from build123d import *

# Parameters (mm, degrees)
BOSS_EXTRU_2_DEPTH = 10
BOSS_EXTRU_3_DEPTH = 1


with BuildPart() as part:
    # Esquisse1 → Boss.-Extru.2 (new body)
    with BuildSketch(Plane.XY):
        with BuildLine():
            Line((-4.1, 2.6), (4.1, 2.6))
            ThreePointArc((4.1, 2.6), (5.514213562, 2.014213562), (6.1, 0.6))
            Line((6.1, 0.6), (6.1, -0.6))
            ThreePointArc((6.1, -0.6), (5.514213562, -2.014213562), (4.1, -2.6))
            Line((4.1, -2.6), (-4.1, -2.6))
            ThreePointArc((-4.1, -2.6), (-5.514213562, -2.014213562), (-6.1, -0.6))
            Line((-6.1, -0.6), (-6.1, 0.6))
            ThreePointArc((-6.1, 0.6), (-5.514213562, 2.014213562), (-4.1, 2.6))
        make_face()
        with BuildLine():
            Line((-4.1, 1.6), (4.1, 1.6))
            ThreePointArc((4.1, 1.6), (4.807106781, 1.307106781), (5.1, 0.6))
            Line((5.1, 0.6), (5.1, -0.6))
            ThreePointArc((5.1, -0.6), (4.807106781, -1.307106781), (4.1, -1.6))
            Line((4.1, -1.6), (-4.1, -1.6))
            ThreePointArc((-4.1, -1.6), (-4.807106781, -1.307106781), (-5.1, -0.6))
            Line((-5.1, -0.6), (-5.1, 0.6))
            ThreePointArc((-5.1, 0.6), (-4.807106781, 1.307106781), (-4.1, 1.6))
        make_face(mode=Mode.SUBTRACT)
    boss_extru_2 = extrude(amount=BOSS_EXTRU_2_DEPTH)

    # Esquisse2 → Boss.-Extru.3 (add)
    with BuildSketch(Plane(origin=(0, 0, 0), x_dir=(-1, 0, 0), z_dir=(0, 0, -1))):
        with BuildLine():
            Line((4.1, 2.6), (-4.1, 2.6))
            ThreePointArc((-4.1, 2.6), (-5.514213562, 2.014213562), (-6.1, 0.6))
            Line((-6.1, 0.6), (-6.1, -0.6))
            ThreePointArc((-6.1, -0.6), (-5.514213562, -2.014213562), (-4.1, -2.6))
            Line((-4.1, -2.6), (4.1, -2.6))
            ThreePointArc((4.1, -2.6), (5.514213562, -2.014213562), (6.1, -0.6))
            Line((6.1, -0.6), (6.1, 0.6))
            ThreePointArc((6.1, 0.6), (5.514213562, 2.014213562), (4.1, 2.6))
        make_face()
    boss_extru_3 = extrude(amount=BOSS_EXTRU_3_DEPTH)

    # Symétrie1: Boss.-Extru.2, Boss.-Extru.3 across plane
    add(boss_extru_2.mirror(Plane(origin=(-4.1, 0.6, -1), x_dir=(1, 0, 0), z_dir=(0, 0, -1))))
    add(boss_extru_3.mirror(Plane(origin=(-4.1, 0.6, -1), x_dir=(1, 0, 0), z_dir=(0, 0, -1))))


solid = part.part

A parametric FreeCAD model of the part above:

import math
import FreeCAD as App
import Part
import Sketcher

doc = App.newDocument("Part")
params = doc.addObject("Spreadsheet::Sheet", "Params")
for row, (alias, value) in enumerate([
    ("sketch1_radius", "2 mm"),
    ("sketch1_radius2", "1 mm"),
    ("sketch1_width", "8.2 mm"),
    ("sketch1_height", "1.2 mm"),
    ("pad1_length", "10 mm"),
    ("sketch2_radius", "2 mm"),
    ("sketch2_width", "8.2 mm"),
    ("sketch2_height", "1.2 mm"),
    ("pad2_length", "1 mm"),
], start=1):
    params.set(f"A{row}", alias)
    params.set(f"B{row}", "=" + value)
    params.setAlias(f"B{row}", alias)

body = doc.addObject("PartDesign::Body", "Body")

# Sketch on XY plane
sketch1 = doc.addObject("Sketcher::SketchObject", "Sketch")
body.addObject(sketch1)
sketch1.AttachmentSupport = (doc.XY_Plane, [""])
sketch1.MapMode = "FlatFace"
sketch1.addGeometry([
    Part.LineSegment(App.Vector(4.1, 2.6, 0), App.Vector(-4.1, 2.6, 0)),  # 0
    Part.ArcOfCircle(Part.Circle(App.Vector(-4.1, 0.6, 0), App.Vector(0, 0, 1), 2), math.radians(90), math.radians(180)),  # 1
    Part.LineSegment(App.Vector(-6.1, 0.6, 0), App.Vector(-6.1, -0.6, 0)),  # 2
    Part.ArcOfCircle(Part.Circle(App.Vector(-4.1, -0.6, 0), App.Vector(0, 0, 1), 2), math.radians(-180), math.radians(-90)),  # 3
    Part.LineSegment(App.Vector(-4.1, -2.6, 0), App.Vector(4.1, -2.6, 0)),  # 4
    Part.ArcOfCircle(Part.Circle(App.Vector(4.1, -0.6, 0), App.Vector(0, 0, 1), 2), math.radians(-90), math.radians(0)),  # 5
    Part.LineSegment(App.Vector(6.1, -0.6, 0), App.Vector(6.1, 0.6, 0)),  # 6
    Part.ArcOfCircle(Part.Circle(App.Vector(4.1, 0.6, 0), App.Vector(0, 0, 1), 2), math.radians(0), math.radians(90)),  # 7
    Part.LineSegment(App.Vector(-4.1, 1.6, 0), App.Vector(4.1, 1.6, 0)),  # 8
    Part.ArcOfCircle(Part.Circle(App.Vector(4.1, 0.6, 0), App.Vector(0, 0, 1), 1), math.radians(0), math.radians(90)),  # 9
    Part.LineSegment(App.Vector(5.1, 0.6, 0), App.Vector(5.1, -0.6, 0)),  # 10
    Part.ArcOfCircle(Part.Circle(App.Vector(4.1, -0.6, 0), App.Vector(0, 0, 1), 1), math.radians(-90), math.radians(0)),  # 11
    Part.LineSegment(App.Vector(4.1, -1.6, 0), App.Vector(-4.1, -1.6, 0)),  # 12
    Part.ArcOfCircle(Part.Circle(App.Vector(-4.1, -0.6, 0), App.Vector(0, 0, 1), 1), math.radians(-180), math.radians(-90)),  # 13
    Part.LineSegment(App.Vector(-5.1, -0.6, 0), App.Vector(-5.1, 0.6, 0)),  # 14
    Part.ArcOfCircle(Part.Circle(App.Vector(-4.1, 0.6, 0), App.Vector(0, 0, 1), 1), math.radians(90), math.radians(180)),  # 15
], False)
sketch1.addConstraint([
    Sketcher.Constraint("Tangent", 0, 2, 1, 1),
    Sketcher.Constraint("Tangent", 1, 2, 2, 1),
    Sketcher.Constraint("Tangent", 2, 2, 3, 1),
    Sketcher.Constraint("Tangent", 3, 2, 4, 1),
    Sketcher.Constraint("Tangent", 4, 2, 5, 1),
    Sketcher.Constraint("Tangent", 5, 2, 6, 1),
    Sketcher.Constraint("Tangent", 6, 2, 7, 1),
    Sketcher.Constraint("Tangent", 7, 2, 0, 1),
    Sketcher.Constraint("Tangent", 8, 2, 9, 2),
    Sketcher.Constraint("Tangent", 9, 1, 10, 1),
    Sketcher.Constraint("Tangent", 10, 2, 11, 2),
    Sketcher.Constraint("Tangent", 11, 1, 12, 1),
    Sketcher.Constraint("Tangent", 12, 2, 13, 2),
    Sketcher.Constraint("Tangent", 13, 1, 14, 1),
    Sketcher.Constraint("Tangent", 14, 2, 15, 2),
    Sketcher.Constraint("Tangent", 15, 1, 8, 1),
    Sketcher.Constraint("Horizontal", 0),
    Sketcher.Constraint("Vertical", 2),
    Sketcher.Constraint("Horizontal", 4),
    Sketcher.Constraint("Vertical", 6),
    Sketcher.Constraint("Horizontal", 8),
    Sketcher.Constraint("Vertical", 10),
    Sketcher.Constraint("Horizontal", 12),
    Sketcher.Constraint("Vertical", 14),
    Sketcher.Constraint("Coincident", 9, 3, 7, 3),
    Sketcher.Constraint("Coincident", 11, 3, 5, 3),
    Sketcher.Constraint("Coincident", 13, 3, 3, 3),
    Sketcher.Constraint("Equal", 1, 3),
    Sketcher.Constraint("Equal", 3, 5),
    Sketcher.Constraint("Equal", 5, 7),
    Sketcher.Constraint("Equal", 13, 15),
    Sketcher.Constraint("Symmetric", 1, 3, 5, 3, -1, 1),
    Sketcher.Constraint("Radius", 1, 2.0),
    Sketcher.Constraint("Radius", 9, 1.0),
    Sketcher.Constraint("DistanceX", 0, 2, 0, 1, 8.2),
    Sketcher.Constraint("DistanceY", 2, 2, 2, 1, 1.2),
])
sketch1.setExpression("Constraints[32]", "Params.sketch1_radius")
sketch1.setExpression("Constraints[33]", "Params.sketch1_radius2")
sketch1.setExpression("Constraints[34]", "Params.sketch1_width")
sketch1.setExpression("Constraints[35]", "Params.sketch1_height")
pad1 = doc.addObject("PartDesign::Pad", "Pad")
body.addObject(pad1)
pad1.Profile = sketch1
pad1.setExpression("Length", "Params.pad1_length")

# Sketch on XY plane
sketch2 = doc.addObject("Sketcher::SketchObject", "Sketch001")
body.addObject(sketch2)
sketch2.AttachmentSupport = (doc.XY_Plane, [""])
sketch2.MapMode = "FlatFace"
sketch2.addGeometry([
    Part.LineSegment(App.Vector(-4.1, 2.6, 0), App.Vector(4.1, 2.6, 0)),  # 0
    Part.ArcOfCircle(Part.Circle(App.Vector(4.1, 0.6, 0), App.Vector(0, 0, 1), 2), math.radians(0), math.radians(90)),  # 1
    Part.LineSegment(App.Vector(6.1, 0.6, 0), App.Vector(6.1, -0.6, 0)),  # 2
    Part.ArcOfCircle(Part.Circle(App.Vector(4.1, -0.6, 0), App.Vector(0, 0, 1), 2), math.radians(-90), math.radians(0)),  # 3
    Part.LineSegment(App.Vector(4.1, -2.6, 0), App.Vector(-4.1, -2.6, 0)),  # 4
    Part.ArcOfCircle(Part.Circle(App.Vector(-4.1, -0.6, 0), App.Vector(0, 0, 1), 2), math.radians(-180), math.radians(-90)),  # 5
    Part.LineSegment(App.Vector(-6.1, -0.6, 0), App.Vector(-6.1, 0.6, 0)),  # 6
    Part.ArcOfCircle(Part.Circle(App.Vector(-4.1, 0.6, 0), App.Vector(0, 0, 1), 2), math.radians(90), math.radians(180)),  # 7
], False)
sketch2.addConstraint([
    Sketcher.Constraint("Tangent", 0, 2, 1, 2),
    Sketcher.Constraint("Tangent", 1, 1, 2, 1),
    Sketcher.Constraint("Tangent", 2, 2, 3, 2),
    Sketcher.Constraint("Tangent", 3, 1, 4, 1),
    Sketcher.Constraint("Tangent", 4, 2, 5, 2),
    Sketcher.Constraint("Tangent", 5, 1, 6, 1),
    Sketcher.Constraint("Tangent", 6, 2, 7, 2),
    Sketcher.Constraint("Tangent", 7, 1, 0, 1),
    Sketcher.Constraint("Horizontal", 0),
    Sketcher.Constraint("Vertical", 2),
    Sketcher.Constraint("Horizontal", 4),
    Sketcher.Constraint("Vertical", 6),
    Sketcher.Constraint("Equal", 1, 3),
    Sketcher.Constraint("Equal", 3, 5),
    Sketcher.Constraint("Equal", 5, 7),
    Sketcher.Constraint("Symmetric", 1, 3, 5, 3, -1, 1),
    Sketcher.Constraint("Radius", 1, 2.0),
    Sketcher.Constraint("DistanceX", 0, 1, 0, 2, 8.2),
    Sketcher.Constraint("DistanceY", 2, 2, 2, 1, 1.2),
])
sketch2.setExpression("Constraints[16]", "Params.sketch2_radius")
sketch2.setExpression("Constraints[17]", "Params.sketch2_width")
sketch2.setExpression("Constraints[18]", "Params.sketch2_height")
pad2 = doc.addObject("PartDesign::Pad", "Pad001")
body.addObject(pad2)
pad2.Profile = sketch2
pad2.setExpression("Length", "Params.pad2_length")
pad2.Reversed = True
doc.recompute()

datumplane = doc.addObject("PartDesign::Plane", "DatumPlane")
body.addObject(datumplane)
datumplane.AttachmentSupport = (doc.XY_Plane, [""])
datumplane.MapMode = "FlatFace"
datumplane.AttachmentOffset = App.Placement(App.Vector(0, 0, -1), App.Rotation())
mirrored = doc.addObject("PartDesign::Mirrored", "Mirrored")
body.addObject(mirrored)
mirrored.Originals = [pad1, pad2]
mirrored.MirrorPlane = (datumplane, [""])
body.Tip = mirrored

doc.recompute()
